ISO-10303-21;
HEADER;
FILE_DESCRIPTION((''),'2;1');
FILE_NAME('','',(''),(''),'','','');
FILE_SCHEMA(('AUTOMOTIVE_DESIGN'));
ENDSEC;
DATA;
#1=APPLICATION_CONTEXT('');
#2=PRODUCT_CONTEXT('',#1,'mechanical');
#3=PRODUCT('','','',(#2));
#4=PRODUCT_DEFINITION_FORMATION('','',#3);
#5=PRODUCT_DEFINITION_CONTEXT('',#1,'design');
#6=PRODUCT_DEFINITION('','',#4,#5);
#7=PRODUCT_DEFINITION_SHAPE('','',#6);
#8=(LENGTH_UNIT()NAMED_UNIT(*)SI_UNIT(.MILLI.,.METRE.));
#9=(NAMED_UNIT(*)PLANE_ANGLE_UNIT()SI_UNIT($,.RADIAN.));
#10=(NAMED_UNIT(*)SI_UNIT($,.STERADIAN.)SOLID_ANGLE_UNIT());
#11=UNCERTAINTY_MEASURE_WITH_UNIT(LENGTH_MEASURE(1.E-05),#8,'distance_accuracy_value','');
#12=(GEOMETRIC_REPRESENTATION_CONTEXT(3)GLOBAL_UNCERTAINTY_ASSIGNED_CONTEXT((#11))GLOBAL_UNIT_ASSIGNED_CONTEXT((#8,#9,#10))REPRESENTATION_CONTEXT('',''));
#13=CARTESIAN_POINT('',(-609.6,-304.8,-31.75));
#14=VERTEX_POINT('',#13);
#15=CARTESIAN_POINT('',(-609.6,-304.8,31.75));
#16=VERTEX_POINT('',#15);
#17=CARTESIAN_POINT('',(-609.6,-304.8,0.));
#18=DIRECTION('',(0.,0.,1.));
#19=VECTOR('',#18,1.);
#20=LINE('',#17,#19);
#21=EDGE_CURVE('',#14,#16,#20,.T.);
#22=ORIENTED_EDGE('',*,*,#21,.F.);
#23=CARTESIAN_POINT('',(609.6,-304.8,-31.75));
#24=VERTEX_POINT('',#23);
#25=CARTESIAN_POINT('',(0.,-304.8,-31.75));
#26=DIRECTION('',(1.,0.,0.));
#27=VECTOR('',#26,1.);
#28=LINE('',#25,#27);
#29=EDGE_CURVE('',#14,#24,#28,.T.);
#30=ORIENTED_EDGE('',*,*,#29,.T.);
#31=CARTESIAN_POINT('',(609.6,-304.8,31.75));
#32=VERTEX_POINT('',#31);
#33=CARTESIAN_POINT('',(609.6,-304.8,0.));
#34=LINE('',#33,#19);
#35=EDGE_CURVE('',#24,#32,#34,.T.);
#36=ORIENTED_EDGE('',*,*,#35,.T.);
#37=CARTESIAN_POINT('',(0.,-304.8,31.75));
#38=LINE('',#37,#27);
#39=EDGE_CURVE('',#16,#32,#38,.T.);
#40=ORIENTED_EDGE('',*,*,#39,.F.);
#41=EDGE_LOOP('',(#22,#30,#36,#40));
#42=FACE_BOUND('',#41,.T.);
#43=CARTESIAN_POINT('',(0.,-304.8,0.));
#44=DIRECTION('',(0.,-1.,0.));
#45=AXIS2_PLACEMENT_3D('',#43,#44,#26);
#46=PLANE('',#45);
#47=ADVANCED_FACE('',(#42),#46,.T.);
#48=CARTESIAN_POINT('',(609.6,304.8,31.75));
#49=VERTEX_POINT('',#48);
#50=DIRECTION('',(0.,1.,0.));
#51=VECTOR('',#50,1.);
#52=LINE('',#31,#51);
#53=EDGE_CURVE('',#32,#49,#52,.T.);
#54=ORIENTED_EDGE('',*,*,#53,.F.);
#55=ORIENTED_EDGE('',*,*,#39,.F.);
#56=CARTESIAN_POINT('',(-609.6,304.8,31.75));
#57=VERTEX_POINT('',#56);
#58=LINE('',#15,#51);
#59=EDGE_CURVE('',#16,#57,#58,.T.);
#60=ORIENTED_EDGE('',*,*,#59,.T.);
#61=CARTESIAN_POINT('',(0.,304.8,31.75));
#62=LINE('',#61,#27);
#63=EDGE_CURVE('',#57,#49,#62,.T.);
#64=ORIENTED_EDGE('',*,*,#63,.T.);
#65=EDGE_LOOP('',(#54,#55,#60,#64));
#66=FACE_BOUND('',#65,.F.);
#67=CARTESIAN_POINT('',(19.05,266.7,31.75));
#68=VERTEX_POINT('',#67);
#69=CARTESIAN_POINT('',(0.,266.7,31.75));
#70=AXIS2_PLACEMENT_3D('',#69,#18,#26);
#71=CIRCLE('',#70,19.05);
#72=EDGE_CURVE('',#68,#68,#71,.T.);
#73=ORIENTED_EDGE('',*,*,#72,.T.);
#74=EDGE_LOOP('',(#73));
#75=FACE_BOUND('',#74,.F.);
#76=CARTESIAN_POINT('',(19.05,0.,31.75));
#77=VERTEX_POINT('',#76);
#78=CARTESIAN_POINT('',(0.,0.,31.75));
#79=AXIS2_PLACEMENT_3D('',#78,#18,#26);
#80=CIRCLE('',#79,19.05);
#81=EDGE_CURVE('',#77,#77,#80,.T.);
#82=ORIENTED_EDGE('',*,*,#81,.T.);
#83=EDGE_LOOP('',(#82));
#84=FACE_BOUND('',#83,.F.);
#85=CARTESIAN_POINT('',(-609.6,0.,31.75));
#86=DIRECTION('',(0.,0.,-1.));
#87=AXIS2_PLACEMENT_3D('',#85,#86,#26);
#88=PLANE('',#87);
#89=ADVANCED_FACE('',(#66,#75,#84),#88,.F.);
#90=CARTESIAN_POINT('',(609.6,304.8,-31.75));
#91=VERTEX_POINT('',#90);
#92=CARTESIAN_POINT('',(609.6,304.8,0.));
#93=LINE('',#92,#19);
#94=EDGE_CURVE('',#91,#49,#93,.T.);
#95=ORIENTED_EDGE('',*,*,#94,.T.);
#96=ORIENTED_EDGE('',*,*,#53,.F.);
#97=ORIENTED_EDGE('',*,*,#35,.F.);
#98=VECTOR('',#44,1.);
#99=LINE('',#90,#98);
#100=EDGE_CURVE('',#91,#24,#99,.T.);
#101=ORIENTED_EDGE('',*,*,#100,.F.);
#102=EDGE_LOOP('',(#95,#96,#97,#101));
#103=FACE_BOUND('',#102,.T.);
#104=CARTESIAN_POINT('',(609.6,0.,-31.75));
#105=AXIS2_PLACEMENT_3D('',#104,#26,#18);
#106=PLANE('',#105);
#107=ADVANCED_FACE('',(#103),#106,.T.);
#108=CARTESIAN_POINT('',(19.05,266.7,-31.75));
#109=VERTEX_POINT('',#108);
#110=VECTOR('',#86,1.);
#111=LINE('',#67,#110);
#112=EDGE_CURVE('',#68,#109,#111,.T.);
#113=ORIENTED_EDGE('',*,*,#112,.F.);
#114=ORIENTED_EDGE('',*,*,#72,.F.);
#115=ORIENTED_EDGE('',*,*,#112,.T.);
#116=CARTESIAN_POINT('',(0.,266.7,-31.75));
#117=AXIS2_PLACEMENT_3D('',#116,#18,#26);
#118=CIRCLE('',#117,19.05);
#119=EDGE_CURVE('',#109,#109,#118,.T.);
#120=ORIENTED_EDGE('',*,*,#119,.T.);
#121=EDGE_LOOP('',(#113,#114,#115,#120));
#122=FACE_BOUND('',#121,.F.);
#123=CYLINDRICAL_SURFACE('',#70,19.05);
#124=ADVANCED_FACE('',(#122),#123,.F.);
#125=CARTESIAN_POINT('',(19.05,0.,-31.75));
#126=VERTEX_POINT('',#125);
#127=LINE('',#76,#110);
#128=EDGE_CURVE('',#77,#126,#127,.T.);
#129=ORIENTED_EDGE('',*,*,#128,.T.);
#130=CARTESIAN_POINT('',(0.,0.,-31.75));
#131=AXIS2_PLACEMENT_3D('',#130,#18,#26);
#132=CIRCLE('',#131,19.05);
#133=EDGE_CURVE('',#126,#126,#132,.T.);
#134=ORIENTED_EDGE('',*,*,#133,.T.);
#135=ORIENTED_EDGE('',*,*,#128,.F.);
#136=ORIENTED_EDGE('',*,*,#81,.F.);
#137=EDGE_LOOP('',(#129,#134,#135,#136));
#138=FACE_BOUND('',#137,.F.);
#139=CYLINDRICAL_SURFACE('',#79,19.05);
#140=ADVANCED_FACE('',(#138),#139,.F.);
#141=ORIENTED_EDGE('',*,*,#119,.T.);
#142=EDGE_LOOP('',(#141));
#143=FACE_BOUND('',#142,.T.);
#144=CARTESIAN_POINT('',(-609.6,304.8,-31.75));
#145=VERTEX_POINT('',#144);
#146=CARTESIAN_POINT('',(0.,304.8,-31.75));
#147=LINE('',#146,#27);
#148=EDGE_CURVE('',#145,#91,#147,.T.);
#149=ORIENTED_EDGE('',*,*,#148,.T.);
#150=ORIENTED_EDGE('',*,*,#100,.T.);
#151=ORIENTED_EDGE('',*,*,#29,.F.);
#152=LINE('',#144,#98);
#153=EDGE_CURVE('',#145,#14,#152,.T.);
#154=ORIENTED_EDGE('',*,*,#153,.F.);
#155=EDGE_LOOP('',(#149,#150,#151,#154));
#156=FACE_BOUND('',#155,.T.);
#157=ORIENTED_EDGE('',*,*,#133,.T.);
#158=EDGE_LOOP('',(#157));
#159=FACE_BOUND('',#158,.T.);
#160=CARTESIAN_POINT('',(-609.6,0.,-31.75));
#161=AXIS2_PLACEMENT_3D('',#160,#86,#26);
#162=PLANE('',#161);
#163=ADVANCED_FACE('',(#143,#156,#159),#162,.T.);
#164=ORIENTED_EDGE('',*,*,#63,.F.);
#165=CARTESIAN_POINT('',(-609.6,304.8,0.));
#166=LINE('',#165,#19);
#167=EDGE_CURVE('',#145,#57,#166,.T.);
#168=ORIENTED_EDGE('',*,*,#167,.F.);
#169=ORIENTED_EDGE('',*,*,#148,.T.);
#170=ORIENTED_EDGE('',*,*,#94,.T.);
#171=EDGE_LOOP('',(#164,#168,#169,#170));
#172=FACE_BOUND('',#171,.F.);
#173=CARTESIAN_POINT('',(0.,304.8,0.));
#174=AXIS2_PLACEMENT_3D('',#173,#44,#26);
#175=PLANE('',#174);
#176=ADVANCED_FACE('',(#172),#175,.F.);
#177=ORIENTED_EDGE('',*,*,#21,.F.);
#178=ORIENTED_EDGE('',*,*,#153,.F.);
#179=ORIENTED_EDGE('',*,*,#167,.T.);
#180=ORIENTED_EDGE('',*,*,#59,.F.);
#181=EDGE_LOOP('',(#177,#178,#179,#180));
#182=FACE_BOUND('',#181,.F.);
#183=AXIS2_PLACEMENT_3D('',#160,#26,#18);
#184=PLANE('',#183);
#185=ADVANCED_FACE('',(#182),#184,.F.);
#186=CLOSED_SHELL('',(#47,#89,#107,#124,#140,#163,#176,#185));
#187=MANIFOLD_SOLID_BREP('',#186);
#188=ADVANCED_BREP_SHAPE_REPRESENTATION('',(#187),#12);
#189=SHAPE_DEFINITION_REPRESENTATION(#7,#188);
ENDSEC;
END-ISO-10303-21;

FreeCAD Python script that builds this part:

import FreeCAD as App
import Part
import Sketcher

V = App.Vector
Q = App.Units.Quantity


def add_polygon(sketch, points):
    """Adds a closed chain of lines whose ends are joined by coincident constraints."""
    first, n = sketch.GeometryCount, len(points)
    for a, b in zip(points, points[1:] + points[:1]):
        sketch.addGeometry(Part.LineSegment(App.Vector(*a, 0), App.Vector(*b, 0)), False)
    for i in range(n):
        sketch.addConstraint(Sketcher.Constraint("Coincident", first + i, 2, first + (i + 1) % n, 1))

doc = App.newDocument("Part")
body = doc.addObject("PartDesign::Body", "Body")

# Sketch on XZ plane
sketch1 = body.newObject("Sketcher::SketchObject", "Sketch")
sketch1.AttachmentSupport = (doc.getObject("XZ_Plane"), [""])
sketch1.MapMode = "FlatFace"
add_polygon(sketch1, [(-609.6, 31.75), (-609.6, -31.75), (609.6, -31.75), (609.6, 31.75)])  # lines 0-3
sketch1.addConstraint(Sketcher.Constraint("Vertical", 0))
sketch1.addConstraint(Sketcher.Constraint("Horizontal", 1))
sketch1.addConstraint(Sketcher.Constraint("Vertical", 2))
sketch1.addConstraint(Sketcher.Constraint("Horizontal", 3))
sketch1.addConstraint(Sketcher.Constraint("Symmetric", 0, 2, 2, 2, -1, 1))
sketch1.addConstraint(Sketcher.Constraint("DistanceX", 1, 1, 1, 2, Q("48 in")))
sketch1.addConstraint(Sketcher.Constraint("DistanceY", 0, 2, 0, 1, Q("2.5 in")))
pad1 = body.newObject("PartDesign::Pad", "Pad")
pad1.Profile = sketch1
pad1.Length = Q("24 in")
pad1.Midplane = True

# Sketch on XY plane
sketch2 = body.newObject("Sketcher::SketchObject", "Sketch001")
sketch2.AttachmentSupport = (doc.getObject("XY_Plane"), [""])
sketch2.MapMode = "FlatFace"
sketch2.AttachmentOffset = App.Placement(V(0, 0, 1.25 * 25.4), App.Rotation())
sketch2.addGeometry(Part.Circle(V(0, 0, 0), V(0, 0, 1), 19.05), False)
sketch2.addConstraint(Sketcher.Constraint("Coincident", 0, 3, -1, 1))
sketch2.addConstraint(Sketcher.Constraint("Diameter", 0, Q("1.5 in")))
pocket1 = body.newObject("PartDesign::Pocket", "Pocket")
pocket1.Profile = sketch2
pocket1.Type = "ThroughAll"

# Sketch on XY plane
sketch3 = body.newObject("Sketcher::SketchObject", "Sketch002")
sketch3.AttachmentSupport = (doc.getObject("XY_Plane"), [""])
sketch3.MapMode = "FlatFace"
sketch3.AttachmentOffset = App.Placement(V(0, 0, 1.25 * 25.4), App.Rotation())
sketch3.addGeometry(Part.Circle(V(0, 266.7, 0), V(0, 0, 1), 19.05), False)
sketch3.addConstraint(Sketcher.Constraint("PointOnObject", 0, 3, -2))
sketch3.addConstraint(Sketcher.Constraint("Diameter", 0, Q("1.5 in")))
sketch3.addConstraint(Sketcher.Constraint("DistanceY", -1, 1, 0, 3, Q("10.5 in")))
pocket2 = body.newObject("PartDesign::Pocket", "Pocket001")
pocket2.Profile = sketch3
pocket2.Type = "ThroughAll"

doc.recompute()
